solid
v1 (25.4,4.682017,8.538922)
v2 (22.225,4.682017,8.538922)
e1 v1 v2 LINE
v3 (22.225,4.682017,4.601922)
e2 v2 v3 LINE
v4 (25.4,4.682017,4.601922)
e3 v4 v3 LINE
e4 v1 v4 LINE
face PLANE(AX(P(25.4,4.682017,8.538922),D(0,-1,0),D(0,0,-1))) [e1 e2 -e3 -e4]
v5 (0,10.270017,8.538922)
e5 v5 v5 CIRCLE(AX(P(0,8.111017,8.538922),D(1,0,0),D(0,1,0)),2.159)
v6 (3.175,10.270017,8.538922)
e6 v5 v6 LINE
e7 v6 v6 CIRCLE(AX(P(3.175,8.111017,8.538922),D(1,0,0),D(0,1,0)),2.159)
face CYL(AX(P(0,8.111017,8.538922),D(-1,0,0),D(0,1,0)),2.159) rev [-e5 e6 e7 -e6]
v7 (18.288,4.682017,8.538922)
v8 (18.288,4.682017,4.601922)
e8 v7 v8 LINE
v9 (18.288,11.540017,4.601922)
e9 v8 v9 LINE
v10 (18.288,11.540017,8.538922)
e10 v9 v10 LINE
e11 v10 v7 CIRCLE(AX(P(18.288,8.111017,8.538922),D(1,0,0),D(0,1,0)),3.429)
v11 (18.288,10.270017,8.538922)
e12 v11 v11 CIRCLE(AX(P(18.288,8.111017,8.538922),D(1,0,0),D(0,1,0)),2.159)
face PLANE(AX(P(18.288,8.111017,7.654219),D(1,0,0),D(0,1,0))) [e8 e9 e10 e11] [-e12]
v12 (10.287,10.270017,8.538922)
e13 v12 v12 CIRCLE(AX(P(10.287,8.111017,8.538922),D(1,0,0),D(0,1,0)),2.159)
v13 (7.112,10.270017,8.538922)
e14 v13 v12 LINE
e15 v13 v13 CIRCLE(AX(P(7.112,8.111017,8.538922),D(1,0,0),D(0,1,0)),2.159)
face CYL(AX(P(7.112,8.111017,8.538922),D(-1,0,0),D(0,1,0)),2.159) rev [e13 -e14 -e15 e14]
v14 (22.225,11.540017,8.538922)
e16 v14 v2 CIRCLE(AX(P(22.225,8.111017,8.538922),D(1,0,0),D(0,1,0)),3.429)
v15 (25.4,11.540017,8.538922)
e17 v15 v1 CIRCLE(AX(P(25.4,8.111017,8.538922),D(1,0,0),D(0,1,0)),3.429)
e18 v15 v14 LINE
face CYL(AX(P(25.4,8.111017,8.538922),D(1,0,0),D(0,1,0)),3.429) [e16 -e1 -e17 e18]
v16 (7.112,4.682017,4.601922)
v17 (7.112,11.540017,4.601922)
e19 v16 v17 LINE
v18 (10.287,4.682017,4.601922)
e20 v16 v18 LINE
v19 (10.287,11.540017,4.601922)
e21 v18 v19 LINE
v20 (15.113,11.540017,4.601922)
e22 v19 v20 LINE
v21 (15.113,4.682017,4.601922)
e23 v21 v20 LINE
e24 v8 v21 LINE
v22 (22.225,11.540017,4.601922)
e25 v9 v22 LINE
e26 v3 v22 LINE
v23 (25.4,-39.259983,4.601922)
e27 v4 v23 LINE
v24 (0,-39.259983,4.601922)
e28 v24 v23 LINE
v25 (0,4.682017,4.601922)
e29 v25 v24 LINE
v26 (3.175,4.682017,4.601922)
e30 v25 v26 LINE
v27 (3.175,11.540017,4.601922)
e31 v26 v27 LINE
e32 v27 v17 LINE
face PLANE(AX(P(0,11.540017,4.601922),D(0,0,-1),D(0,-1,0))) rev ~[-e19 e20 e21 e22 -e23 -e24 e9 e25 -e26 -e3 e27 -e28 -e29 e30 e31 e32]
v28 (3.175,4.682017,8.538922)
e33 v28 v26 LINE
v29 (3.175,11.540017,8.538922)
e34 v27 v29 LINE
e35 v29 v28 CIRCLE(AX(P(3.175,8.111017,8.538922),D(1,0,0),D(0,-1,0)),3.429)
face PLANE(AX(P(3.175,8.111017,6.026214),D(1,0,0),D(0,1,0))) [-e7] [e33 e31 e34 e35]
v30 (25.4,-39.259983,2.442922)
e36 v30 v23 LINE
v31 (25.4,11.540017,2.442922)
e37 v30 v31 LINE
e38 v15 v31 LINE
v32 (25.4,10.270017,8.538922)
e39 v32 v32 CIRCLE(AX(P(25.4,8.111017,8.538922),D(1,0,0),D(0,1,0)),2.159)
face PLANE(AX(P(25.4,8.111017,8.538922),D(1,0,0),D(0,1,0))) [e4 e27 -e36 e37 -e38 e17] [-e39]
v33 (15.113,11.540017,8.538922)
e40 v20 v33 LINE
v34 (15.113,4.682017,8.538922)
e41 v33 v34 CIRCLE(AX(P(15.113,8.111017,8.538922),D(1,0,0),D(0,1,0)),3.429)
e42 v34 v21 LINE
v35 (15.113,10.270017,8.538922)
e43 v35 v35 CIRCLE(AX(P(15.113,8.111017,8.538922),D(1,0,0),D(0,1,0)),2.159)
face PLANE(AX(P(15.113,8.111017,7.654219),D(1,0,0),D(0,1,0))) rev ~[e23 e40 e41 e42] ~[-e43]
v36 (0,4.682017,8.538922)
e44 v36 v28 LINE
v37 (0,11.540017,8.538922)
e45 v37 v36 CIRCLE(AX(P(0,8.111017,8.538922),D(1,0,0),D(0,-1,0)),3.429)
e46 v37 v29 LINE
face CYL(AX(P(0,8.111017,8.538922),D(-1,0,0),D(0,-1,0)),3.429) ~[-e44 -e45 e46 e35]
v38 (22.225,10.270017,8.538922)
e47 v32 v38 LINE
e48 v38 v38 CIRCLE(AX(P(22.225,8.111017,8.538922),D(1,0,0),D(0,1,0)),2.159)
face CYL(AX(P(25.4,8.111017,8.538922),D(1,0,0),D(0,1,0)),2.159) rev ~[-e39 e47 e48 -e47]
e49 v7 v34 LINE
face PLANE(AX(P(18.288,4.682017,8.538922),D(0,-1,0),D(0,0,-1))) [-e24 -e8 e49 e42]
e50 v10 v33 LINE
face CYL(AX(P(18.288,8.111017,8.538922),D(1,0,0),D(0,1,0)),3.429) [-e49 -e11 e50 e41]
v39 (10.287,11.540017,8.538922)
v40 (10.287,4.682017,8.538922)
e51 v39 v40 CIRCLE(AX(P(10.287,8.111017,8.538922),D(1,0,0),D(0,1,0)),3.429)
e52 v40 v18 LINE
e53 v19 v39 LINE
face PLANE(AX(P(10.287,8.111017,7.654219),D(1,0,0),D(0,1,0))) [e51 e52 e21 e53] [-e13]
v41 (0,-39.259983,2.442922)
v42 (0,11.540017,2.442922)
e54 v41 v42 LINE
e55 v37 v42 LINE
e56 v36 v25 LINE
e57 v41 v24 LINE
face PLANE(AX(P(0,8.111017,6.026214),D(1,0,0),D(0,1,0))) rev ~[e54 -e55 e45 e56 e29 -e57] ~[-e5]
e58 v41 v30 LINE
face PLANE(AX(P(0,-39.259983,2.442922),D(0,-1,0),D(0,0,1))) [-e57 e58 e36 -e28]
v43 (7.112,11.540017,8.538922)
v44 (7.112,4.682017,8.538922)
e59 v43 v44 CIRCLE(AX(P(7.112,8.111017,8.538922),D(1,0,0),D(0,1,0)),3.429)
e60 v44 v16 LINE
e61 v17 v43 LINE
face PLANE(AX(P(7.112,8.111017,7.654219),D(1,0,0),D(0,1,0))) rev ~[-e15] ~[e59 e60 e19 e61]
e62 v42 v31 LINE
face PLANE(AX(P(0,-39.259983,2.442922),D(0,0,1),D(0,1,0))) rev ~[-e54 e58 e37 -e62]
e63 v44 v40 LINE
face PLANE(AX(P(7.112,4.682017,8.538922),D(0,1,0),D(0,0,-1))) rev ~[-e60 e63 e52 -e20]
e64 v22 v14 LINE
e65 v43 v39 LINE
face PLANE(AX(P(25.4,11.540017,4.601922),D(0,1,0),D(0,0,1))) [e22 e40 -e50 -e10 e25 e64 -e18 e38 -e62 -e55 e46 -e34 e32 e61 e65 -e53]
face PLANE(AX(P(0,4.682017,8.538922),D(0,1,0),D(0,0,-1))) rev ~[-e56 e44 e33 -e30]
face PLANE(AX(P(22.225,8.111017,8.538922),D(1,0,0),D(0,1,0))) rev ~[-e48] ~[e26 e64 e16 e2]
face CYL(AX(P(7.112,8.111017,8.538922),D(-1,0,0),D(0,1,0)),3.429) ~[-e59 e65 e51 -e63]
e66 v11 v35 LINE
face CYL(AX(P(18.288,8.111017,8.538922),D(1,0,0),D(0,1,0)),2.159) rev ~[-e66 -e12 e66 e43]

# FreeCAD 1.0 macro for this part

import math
import FreeCAD as App
import Part
import Sketcher
from FreeCAD import Vector
Q = App.Units.Quantity


def add_polygon(sketch, points):
    """Adds a closed chain of lines whose ends are joined by coincident constraints."""
    first, n = sketch.GeometryCount, len(points)
    for a, b in zip(points, points[1:] + points[:1]):
        sketch.addGeometry(Part.LineSegment(App.Vector(*a, 0), App.Vector(*b, 0)), False)
    for i in range(n):
        sketch.addConstraint(Sketcher.Constraint("Coincident", first + i, 2, first + (i + 1) % n, 1))

doc = App.newDocument("Part")
body = doc.addObject("PartDesign::Body", "Body")

# Sketch on YZ plane
sketch1 = doc.addObject("Sketcher::SketchObject", "Sketch")
body.addObject(sketch1)
sketch1.AttachmentSupport = (doc.YZ_Plane, [""])
sketch1.MapMode = "FlatFace"
add_polygon(sketch1, [(-39.259983, 4.601922), (-39.259983, 2.442922), (11.540017, 2.442922), (11.540017, 4.601922)])  # lines 0-3
sketch1.addConstraint([
    Sketcher.Constraint("Vertical", 0),
    Sketcher.Constraint("Horizontal", 1),
    Sketcher.Constraint("Vertical", 2),
    Sketcher.Constraint("Horizontal", 3),
    Sketcher.Constraint("DistanceX", 1, 1, 1, 2, Q("2 in")),
    Sketcher.Constraint("DistanceY", 0, 2, 0, 1, Q("0.085 in")),
    Sketcher.Constraint("DistanceX", 0, 2, -1, 1, 39.259983),
    Sketcher.Constraint("DistanceY", -1, 1, 0, 2, 2.442922),
])
pad1 = doc.addObject("PartDesign::Pad", "Pad")
body.addObject(pad1)
pad1.Profile = sketch1
pad1.Length = Q("1 in")

# Sketch on YZ plane
sketch2 = doc.addObject("Sketcher::SketchObject", "Sketch001")
body.addObject(sketch2)
sketch2.AttachmentSupport = (doc.YZ_Plane, [""])
sketch2.MapMode = "FlatFace"
sketch2.addGeometry([
    Part.LineSegment(Vector(4.682017, 8.538922, 0), Vector(4.682017, 4.601922, 0)),  # 0
    Part.LineSegment(Vector(4.682017, 4.601922, 0), Vector(11.540017, 4.601922, 0)),  # 1
    Part.LineSegment(Vector(11.540017, 4.601922, 0), Vector(11.540017, 8.538922, 0)),  # 2
    Part.ArcOfCircle(Part.Circle(Vector(8.111017, 8.538922, 0), Vector(0, 0, 1), 3.429), math.radians(0), math.radians(180)),  # 3
    Part.Circle(Vector(8.111017, 8.538922, 0), Vector(0, 0, 1), 2.159),  # 4
], False)
sketch2.addConstraint([
    Sketcher.Constraint("Coincident", 0, 2, 1, 1),
    Sketcher.Constraint("Coincident", 1, 2, 2, 1),
    Sketcher.Constraint("Tangent", 2, 2, 3, 1),
    Sketcher.Constraint("Tangent", 3, 2, 0, 1),
    Sketcher.Constraint("Vertical", 0),
    Sketcher.Constraint("Horizontal", 1),
    Sketcher.Constraint("Vertical", 2),
    Sketcher.Constraint("Coincident", 4, 3, 3, 3),
    Sketcher.Constraint("Diameter", 4, Q("0.17 in")),
    Sketcher.Constraint("Radius", 3, Q("0.135 in")),
    Sketcher.Constraint("DistanceY", 0, 2, 0, 1, Q("0.155 in")),
    Sketcher.Constraint("DistanceX", -1, 1, 3, 3, 8.111017),
    Sketcher.Constraint("DistanceY", -1, 1, 3, 3, 8.538922),
])
pad2 = doc.addObject("PartDesign::Pad", "Pad001")
body.addObject(pad2)
pad2.Profile = sketch2
pad2.Length = Q("0.125 in")

# Sketch on YZ plane
sketch3 = doc.addObject("Sketcher::SketchObject", "Sketch002")
body.addObject(sketch3)
sketch3.AttachmentSupport = (doc.YZ_Plane, [""])
sketch3.MapMode = "FlatFace"
sketch3.AttachmentOffset = App.Placement(Vector(0, 0, 1 * 25.4), App.Rotation())
sketch3.addGeometry([
    Part.ArcOfCircle(Part.Circle(Vector(8.111017, 8.538922, 0), Vector(0, 0, 1), 3.429), math.radians(0), math.radians(180)),  # 0
    Part.LineSegment(Vector(4.682017, 8.538922, 0), Vector(4.682017, 4.601922, 0)),  # 1
    Part.LineSegment(Vector(4.682017, 4.601922, 0), Vector(11.540017, 4.601922, 0)),  # 2
    Part.LineSegment(Vector(11.540017, 4.601922, 0), Vector(11.540017, 8.538922, 0)),  # 3
    Part.Circle(Vector(8.111017, 8.538922, 0), Vector(0, 0, 1), 2.159),  # 4
], False)
sketch3.addConstraint([
    Sketcher.Constraint("Tangent", 0, 2, 1, 1),
    Sketcher.Constraint("Coincident", 1, 2, 2, 1),
    Sketcher.Constraint("Coincident", 2, 2, 3, 1),
    Sketcher.Constraint("Tangent", 3, 2, 0, 1),
    Sketcher.Constraint("Vertical", 1),
    Sketcher.Constraint("Horizontal", 2),
    Sketcher.Constraint("Vertical", 3),
    Sketcher.Constraint("Coincident", 4, 3, 0, 3),
    Sketcher.Constraint("Diameter", 4, Q("0.17 in")),
    Sketcher.Constraint("Radius", 0, Q("0.135 in")),
    Sketcher.Constraint("DistanceY", 1, 2, 1, 1, Q("0.155 in")),
    Sketcher.Constraint("DistanceX", -1, 1, 0, 3, 8.111017),
    Sketcher.Constraint("DistanceY", -1, 1, 0, 3, 8.538922),
])
pad3 = doc.addObject("PartDesign::Pad", "Pad002")
body.addObject(pad3)
pad3.Profile = sketch3
pad3.Length = Q("0.125 in")
pad3.Reversed = True

# Sketch on YZ plane
sketch4 = doc.addObject("Sketcher::SketchObject", "Sketch003")
body.addObject(sketch4)
sketch4.AttachmentSupport = (doc.YZ_Plane, [""])
sketch4.MapMode = "FlatFace"
sketch4.AttachmentOffset = App.Placement(Vector(0, 0, 0.28 * 25.4), App.Rotation())
sketch4.addGeometry([
    Part.LineSegment(Vector(11.540017, 4.601922, 0), Vector(11.540017, 8.538922, 0)),  # 0
    Part.ArcOfCircle(Part.Circle(Vector(8.111017, 8.538922, 0), Vector(0, 0, 1), 3.429), math.radians(0), math.radians(180)),  # 1
    Part.LineSegment(Vector(4.682017, 8.538922, 0), Vector(4.682017, 4.601922, 0)),  # 2
    Part.LineSegment(Vector(4.682017, 4.601922, 0), Vector(11.540017, 4.601922, 0)),  # 3
    Part.Circle(Vector(8.111017, 8.538922, 0), Vector(0, 0, 1), 2.159),  # 4
], False)
sketch4.addConstraint([
    Sketcher.Constraint("Tangent", 0, 2, 1, 1),
    Sketcher.Constraint("Tangent", 1, 2, 2, 1),
    Sketcher.Constraint("Coincident", 2, 2, 3, 1),
    Sketcher.Constraint("Coincident", 3, 2, 0, 1),
    Sketcher.Constraint("Vertical", 0),
    Sketcher.Constraint("Vertical", 2),
    Sketcher.Constraint("Horizontal", 3),
    Sketcher.Constraint("Coincident", 4, 3, 1, 3),
    Sketcher.Constraint("Diameter", 4, Q("0.17 in")),
    Sketcher.Constraint("Radius", 1, Q("0.135 in")),
    Sketcher.Constraint("DistanceY", 0, 1, 0, 2, Q("0.155 in")),
    Sketcher.Constraint("DistanceX", -1, 1, 1, 3, 8.111017),
    Sketcher.Constraint("DistanceY", -1, 1, 1, 3, 8.538922),
])
pad4 = doc.addObject("PartDesign::Pad", "Pad003")
body.addObject(pad4)
pad4.Profile = sketch4
pad4.Length = Q("0.125 in")

# Sketch on YZ plane
sketch5 = doc.addObject("Sketcher::SketchObject", "Sketch004")
body.addObject(sketch5)
sketch5.AttachmentSupport = (doc.YZ_Plane, [""])
sketch5.MapMode = "FlatFace"
sketch5.AttachmentOffset = App.Placement(Vector(0, 0, 0.72 * 25.4), App.Rotation())
sketch5.addGeometry([
    Part.LineSegment(Vector(4.682017, 8.538922, 0), Vector(4.682017, 4.601922, 0)),  # 0
    Part.LineSegment(Vector(4.682017, 4.601922, 0), Vector(11.540017, 4.601922, 0)),  # 1
    Part.LineSegment(Vector(11.540017, 4.601922, 0), Vector(11.540017, 8.538922, 0)),  # 2
    Part.ArcOfCircle(Part.Circle(Vector(8.111017, 8.538922, 0), Vector(0, 0, 1), 3.429), math.radians(0), math.radians(180)),  # 3
    Part.Circle(Vector(8.111017, 8.538922, 0), Vector(0, 0, 1), 2.159),  # 4
], False)
sketch5.addConstraint([
    Sketcher.Constraint("Coincident", 0, 2, 1, 1),
    Sketcher.Constraint("Coincident", 1, 2, 2, 1),
    Sketcher.Constraint("Tangent", 2, 2, 3, 1),
    Sketcher.Constraint("Tangent", 3, 2, 0, 1),
    Sketcher.Constraint("Vertical", 0),
    Sketcher.Constraint("Horizontal", 1),
    Sketcher.Constraint("Vertical", 2),
    Sketcher.Constraint("Coincident", 4, 3, 3, 3),
    Sketcher.Constraint("Diameter", 4, Q("0.17 in")),
    Sketcher.Constraint("Radius", 3, Q("0.135 in")),
    Sketcher.Constraint("DistanceY", 0, 2, 0, 1, Q("0.155 in")),
    Sketcher.Constraint("DistanceX", -1, 1, 3, 3, 8.111017),
    Sketcher.Constraint("DistanceY", -1, 1, 3, 3, 8.538922),
])
pad5 = doc.addObject("PartDesign::Pad", "Pad004")
body.addObject(pad5)
pad5.Profile = sketch5
pad5.Length = Q("0.125 in")
pad5.Reversed = True

doc.recompute()
